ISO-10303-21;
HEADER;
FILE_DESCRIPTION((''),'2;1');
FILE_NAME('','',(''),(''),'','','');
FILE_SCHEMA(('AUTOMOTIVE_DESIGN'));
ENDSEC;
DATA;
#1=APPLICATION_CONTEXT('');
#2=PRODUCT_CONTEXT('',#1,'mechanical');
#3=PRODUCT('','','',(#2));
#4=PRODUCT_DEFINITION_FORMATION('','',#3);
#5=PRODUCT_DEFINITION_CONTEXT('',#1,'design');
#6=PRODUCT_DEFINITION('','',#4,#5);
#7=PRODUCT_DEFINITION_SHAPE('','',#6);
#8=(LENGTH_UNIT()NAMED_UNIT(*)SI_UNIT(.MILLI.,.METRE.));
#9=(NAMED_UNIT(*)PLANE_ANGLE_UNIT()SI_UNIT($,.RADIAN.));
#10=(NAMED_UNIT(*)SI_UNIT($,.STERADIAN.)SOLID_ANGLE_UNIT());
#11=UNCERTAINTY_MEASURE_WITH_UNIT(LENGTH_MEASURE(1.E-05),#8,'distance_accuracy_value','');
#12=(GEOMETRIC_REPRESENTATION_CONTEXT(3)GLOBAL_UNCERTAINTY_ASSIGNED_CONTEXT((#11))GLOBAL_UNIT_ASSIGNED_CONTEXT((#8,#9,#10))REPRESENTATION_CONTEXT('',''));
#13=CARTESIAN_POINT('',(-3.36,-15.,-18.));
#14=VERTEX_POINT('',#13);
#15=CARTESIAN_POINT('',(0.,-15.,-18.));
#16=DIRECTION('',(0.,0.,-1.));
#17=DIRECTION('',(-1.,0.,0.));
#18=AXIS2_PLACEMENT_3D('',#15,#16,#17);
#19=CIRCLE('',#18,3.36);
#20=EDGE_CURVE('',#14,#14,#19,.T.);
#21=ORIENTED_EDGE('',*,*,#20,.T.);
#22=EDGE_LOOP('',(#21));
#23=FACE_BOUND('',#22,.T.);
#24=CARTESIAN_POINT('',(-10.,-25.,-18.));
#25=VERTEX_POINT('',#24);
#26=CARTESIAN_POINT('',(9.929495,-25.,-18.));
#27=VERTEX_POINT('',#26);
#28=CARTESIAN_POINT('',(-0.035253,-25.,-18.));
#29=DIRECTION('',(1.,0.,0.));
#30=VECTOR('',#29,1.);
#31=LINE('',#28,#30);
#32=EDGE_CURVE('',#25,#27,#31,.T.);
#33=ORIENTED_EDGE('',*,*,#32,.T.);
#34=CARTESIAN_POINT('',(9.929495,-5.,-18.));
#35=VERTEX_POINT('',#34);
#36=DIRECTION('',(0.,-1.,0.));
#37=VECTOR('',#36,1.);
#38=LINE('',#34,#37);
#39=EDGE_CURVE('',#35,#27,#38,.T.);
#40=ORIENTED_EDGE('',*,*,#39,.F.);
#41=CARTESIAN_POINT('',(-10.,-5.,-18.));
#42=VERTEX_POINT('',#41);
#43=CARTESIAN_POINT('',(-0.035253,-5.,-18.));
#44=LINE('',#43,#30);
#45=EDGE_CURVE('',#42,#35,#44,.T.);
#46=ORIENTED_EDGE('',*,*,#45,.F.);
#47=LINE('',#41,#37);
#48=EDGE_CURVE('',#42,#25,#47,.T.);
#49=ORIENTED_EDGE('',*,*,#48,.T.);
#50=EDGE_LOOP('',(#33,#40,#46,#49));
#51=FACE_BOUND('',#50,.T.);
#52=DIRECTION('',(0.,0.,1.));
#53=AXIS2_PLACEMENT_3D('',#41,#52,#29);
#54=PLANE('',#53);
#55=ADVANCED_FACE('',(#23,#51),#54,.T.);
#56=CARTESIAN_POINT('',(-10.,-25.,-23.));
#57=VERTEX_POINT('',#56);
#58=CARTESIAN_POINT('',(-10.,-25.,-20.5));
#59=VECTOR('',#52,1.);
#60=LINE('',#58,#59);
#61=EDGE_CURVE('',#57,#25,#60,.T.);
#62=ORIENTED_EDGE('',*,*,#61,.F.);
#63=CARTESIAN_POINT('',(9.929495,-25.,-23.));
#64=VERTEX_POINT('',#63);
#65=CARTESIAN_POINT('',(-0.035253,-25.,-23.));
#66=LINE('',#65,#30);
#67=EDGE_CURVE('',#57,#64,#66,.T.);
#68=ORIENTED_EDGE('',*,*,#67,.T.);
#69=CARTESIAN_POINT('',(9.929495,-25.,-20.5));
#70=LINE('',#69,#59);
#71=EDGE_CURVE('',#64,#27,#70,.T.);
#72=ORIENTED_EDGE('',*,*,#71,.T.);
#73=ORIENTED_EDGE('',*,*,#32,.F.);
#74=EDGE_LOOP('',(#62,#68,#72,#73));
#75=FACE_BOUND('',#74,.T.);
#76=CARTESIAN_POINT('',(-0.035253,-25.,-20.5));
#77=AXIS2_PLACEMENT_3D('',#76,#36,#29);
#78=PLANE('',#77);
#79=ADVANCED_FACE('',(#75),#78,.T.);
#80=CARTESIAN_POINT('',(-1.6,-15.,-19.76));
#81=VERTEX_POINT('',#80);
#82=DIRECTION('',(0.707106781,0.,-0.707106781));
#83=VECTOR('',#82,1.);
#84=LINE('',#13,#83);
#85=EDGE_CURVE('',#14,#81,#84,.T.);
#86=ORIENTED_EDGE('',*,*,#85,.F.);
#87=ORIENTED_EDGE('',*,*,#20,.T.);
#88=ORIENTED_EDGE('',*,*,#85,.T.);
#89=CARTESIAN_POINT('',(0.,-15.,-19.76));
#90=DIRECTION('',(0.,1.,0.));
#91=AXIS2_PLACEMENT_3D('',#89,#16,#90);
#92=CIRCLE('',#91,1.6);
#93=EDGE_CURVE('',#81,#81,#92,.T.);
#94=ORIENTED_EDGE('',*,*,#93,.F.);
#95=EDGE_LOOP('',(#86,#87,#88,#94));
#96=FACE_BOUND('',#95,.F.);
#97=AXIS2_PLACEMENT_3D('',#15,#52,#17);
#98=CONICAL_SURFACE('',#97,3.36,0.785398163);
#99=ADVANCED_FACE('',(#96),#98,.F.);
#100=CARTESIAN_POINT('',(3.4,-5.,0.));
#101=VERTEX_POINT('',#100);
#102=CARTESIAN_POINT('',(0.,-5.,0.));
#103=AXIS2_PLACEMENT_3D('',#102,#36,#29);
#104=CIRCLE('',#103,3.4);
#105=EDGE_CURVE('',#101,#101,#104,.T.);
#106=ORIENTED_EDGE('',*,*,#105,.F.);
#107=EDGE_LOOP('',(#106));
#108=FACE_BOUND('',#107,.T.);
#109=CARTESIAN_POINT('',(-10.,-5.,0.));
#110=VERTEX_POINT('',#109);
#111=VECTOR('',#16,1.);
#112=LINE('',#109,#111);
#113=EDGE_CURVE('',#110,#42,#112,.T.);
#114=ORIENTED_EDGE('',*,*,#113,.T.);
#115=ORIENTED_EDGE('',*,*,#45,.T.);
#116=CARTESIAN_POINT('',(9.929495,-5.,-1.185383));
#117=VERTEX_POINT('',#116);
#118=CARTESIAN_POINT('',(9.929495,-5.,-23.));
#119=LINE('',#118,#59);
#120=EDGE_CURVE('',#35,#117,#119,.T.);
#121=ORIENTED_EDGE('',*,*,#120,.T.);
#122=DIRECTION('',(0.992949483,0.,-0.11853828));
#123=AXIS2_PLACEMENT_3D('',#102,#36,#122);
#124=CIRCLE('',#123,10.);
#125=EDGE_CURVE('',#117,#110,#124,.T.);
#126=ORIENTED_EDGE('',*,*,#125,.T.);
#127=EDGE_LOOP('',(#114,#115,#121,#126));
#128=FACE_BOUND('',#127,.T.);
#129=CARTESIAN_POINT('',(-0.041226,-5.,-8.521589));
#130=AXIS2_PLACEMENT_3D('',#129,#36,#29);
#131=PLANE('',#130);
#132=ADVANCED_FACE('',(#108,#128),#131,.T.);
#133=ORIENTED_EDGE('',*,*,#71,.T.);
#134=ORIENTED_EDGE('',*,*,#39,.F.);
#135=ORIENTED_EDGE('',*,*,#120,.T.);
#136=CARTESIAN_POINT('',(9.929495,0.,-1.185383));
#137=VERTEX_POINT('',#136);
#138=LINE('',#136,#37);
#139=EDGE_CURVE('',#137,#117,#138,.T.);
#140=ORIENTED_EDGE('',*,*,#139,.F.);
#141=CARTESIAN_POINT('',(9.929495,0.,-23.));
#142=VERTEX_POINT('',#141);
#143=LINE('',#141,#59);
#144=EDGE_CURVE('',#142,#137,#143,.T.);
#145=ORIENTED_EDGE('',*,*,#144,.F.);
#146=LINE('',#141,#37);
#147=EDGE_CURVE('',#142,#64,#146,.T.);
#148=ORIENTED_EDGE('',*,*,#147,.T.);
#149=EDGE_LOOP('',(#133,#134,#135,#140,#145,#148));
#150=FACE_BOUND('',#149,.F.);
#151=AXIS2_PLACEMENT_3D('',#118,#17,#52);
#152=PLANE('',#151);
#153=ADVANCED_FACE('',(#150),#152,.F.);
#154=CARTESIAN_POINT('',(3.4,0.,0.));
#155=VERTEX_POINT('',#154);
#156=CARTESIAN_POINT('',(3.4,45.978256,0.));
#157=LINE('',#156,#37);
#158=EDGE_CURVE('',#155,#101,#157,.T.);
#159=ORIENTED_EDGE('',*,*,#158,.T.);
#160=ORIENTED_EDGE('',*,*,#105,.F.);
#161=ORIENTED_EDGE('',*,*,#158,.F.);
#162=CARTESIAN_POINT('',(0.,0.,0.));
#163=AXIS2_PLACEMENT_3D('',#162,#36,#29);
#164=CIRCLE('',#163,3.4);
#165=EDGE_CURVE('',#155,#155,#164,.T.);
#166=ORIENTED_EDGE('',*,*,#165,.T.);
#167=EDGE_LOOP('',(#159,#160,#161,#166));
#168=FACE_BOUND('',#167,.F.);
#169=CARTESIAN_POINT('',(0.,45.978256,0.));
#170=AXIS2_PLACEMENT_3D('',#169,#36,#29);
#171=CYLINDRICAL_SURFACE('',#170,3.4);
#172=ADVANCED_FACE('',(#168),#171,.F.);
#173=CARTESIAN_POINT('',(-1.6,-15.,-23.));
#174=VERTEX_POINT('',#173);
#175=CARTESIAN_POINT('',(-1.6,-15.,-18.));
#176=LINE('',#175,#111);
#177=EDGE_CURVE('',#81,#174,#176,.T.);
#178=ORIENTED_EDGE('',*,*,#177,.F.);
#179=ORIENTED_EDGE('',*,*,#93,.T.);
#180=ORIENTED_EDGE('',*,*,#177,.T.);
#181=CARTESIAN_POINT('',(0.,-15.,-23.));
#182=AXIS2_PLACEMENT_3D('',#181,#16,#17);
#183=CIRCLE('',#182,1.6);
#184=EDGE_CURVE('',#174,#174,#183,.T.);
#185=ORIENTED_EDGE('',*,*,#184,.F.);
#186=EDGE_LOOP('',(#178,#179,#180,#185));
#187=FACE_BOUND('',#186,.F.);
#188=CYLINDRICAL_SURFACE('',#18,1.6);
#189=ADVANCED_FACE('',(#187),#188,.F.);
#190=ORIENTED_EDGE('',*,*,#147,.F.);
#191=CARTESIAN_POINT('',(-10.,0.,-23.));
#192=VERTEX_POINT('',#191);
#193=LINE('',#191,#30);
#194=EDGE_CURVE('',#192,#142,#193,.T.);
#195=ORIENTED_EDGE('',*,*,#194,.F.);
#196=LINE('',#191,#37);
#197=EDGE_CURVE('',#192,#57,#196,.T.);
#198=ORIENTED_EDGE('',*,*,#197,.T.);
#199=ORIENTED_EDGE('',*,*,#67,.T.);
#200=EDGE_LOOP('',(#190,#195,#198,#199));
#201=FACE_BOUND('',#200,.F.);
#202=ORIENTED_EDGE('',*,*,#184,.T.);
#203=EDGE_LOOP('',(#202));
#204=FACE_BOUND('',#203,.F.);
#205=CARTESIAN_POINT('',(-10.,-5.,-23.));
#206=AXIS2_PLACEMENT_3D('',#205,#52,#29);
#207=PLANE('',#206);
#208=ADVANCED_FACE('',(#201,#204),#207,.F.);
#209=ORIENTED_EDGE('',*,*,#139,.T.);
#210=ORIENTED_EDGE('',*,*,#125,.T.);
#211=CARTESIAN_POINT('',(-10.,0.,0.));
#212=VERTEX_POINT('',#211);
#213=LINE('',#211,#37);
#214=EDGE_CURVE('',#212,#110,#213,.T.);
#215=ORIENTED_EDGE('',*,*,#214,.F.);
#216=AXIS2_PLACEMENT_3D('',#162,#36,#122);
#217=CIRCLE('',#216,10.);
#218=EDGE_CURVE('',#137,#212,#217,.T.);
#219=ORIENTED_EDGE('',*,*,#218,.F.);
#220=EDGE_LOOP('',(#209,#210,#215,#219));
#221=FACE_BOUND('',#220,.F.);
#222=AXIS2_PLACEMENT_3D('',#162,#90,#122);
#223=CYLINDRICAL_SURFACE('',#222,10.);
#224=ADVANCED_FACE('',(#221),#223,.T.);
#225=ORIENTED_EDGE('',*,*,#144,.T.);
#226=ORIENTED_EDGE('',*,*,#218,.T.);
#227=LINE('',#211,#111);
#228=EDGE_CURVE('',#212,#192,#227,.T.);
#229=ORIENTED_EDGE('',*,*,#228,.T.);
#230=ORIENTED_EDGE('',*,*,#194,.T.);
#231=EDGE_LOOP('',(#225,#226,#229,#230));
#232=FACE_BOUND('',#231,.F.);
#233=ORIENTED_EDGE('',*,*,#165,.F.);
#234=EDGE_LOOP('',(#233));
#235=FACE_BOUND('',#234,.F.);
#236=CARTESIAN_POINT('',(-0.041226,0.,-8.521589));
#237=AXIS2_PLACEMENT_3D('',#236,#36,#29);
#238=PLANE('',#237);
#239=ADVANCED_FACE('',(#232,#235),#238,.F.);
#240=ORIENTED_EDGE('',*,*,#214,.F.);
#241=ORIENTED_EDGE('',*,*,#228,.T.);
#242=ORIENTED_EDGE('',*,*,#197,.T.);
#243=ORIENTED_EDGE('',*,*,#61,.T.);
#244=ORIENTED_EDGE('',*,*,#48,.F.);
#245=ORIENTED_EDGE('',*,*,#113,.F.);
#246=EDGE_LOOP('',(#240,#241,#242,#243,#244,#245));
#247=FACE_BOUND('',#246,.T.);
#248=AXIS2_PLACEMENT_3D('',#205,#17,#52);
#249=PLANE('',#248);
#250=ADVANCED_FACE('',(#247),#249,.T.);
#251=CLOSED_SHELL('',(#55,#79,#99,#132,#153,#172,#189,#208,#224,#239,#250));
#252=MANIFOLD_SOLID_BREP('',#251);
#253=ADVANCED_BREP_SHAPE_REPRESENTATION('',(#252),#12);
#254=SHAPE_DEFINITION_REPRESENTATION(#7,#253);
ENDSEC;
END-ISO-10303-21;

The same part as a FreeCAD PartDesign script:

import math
import FreeCAD as App
import Part
import Sketcher
from FreeCAD import Vector


def add_polygon(sketch, points):
    """Adds a closed chain of lines whose ends are joined by coincident constraints."""
    first, n = sketch.GeometryCount, len(points)
    for a, b in zip(points, points[1:] + points[:1]):
        sketch.addGeometry(Part.LineSegment(App.Vector(*a, 0), App.Vector(*b, 0)), False)
    for i in range(n):
        sketch.addConstraint(Sketcher.Constraint("Coincident", first + i, 2, first + (i + 1) % n, 1))

doc = App.newDocument("Part")
params = doc.addObject("Spreadsheet::Sheet", "Params")
for row, (alias, value) in enumerate([
    ("sketch1_radius", "10 mm"),
    ("sketch1_height", "23 mm"),
    ("pad1_length", "5 mm"),
    ("sketch2_height", "5 mm"),
    ("pad2_length", "20 mm"),
    ("sketch3_diameter", "6.8 mm"),
    ("hole_diameter", "6.8 mm"),
    ("sketch4_diameter", "3.2 mm"),
    ("hole2_diameter", "3.2 mm"),
    ("hole2_csink_diameter", "6.72 mm"),
], start=1):
    params.set(f"A{row}", alias)
    params.set(f"B{row}", "=" + value)
    params.setAlias(f"B{row}", alias)

body = doc.addObject("PartDesign::Body", "Body")

sketch1 = doc.addObject("Sketcher::SketchObject", "Sketch")
body.addObject(sketch1)
sketch1.AttachmentSupport = (doc.XZ_Plane, [""])
sketch1.MapMode = "FlatFace"
sketch1.addGeometry([
    Part.LineSegment(Vector(9.929495, -23, 0), Vector(9.929495, -1.185383, 0)),
    Part.ArcOfCircle(Part.Circle(Vector(0, 0, 0), Vector(0, 0, 1), 10), math.radians(-6.80775), math.radians(180)),
    Part.LineSegment(Vector(-10, 0, 0), Vector(-10, -23, 0)),
    Part.LineSegment(Vector(-10, -23, 0), Vector(9.929495, -23, 0)),
], False)
sketch1.addConstraint([
    Sketcher.Constraint("Coincident", 0, 2, 1, 1),
    Sketcher.Constraint("Tangent", 1, 2, 2, 1),
    Sketcher.Constraint("Coincident", 2, 2, 3, 1),
    Sketcher.Constraint("Coincident", 3, 2, 0, 1),
    Sketcher.Constraint("Vertical", 0),
    Sketcher.Constraint("Vertical", 2),
    Sketcher.Constraint("Horizontal", 3),
    Sketcher.Constraint("Coincident", 1, 3, -1, 1),
    Sketcher.Constraint("Radius", 1, 10.0),
    Sketcher.Constraint("DistanceY", 2, 2, 2, 1, 23.0),
    Sketcher.Constraint("DistanceX", 3, 1, 3, 2, 19.929495),
])
sketch1.setExpression("Constraints[8]", "Params.sketch1_radius")
sketch1.setExpression("Constraints[9]", "Params.sketch1_height")
pad1 = doc.addObject("PartDesign::Pad", "Pad")
body.addObject(pad1)
pad1.Profile = sketch1
pad1.setExpression("Length", "Params.pad1_length")

sketch2 = doc.addObject("Sketcher::SketchObject", "Sketch001")
body.addObject(sketch2)
sketch2.AttachmentSupport = (doc.XZ_Plane, [""])
sketch2.MapMode = "FlatFace"
sketch2.AttachmentOffset = App.Placement(Vector(0, 0, 5), App.Rotation())
add_polygon(sketch2, [(-10, -18), (-10, -23), (9.929495, -23), (9.929495, -18)])
sketch2.addConstraint([
    Sketcher.Constraint("Vertical", 0),
    Sketcher.Constraint("Horizontal", 1),
    Sketcher.Constraint("Vertical", 2),
    Sketcher.Constraint("Horizontal", 3),
    Sketcher.Constraint("DistanceY", 0, 2, 0, 1, 5.0),
    Sketcher.Constraint("DistanceX", 0, 2, -1, 1, 10.0),
    Sketcher.Constraint("DistanceY", 0, 2, -1, 1, 23.0),
    Sketcher.Constraint("DistanceX", 1, 1, 1, 2, 19.929495),
])
sketch2.setExpression("Constraints[8]", "Params.sketch2_height")
pad2 = doc.addObject("PartDesign::Pad", "Pad001")
body.addObject(pad2)
pad2.Profile = sketch2
pad2.setExpression("Length", "Params.pad2_length")

sketch3 = doc.addObject("Sketcher::SketchObject", "Sketch002")
body.addObject(sketch3)
sketch3.AttachmentSupport = (doc.XZ_Plane, [""])
sketch3.MapMode = "FlatFace"
sketch3.addGeometry(Part.Circle(Vector(0, 0, 0), Vector(0, 0, 1), 3.4), False)
sketch3.addConstraint([
    Sketcher.Constraint("Coincident", 0, 3, -1, 1),
    Sketcher.Constraint("Diameter", 0, 6.8),
])
sketch3.setExpression("Constraints[1]", "Params.sketch3_diameter")
doc.recompute()
hole = doc.addObject("PartDesign::Hole", "Hole")
body.addObject(hole)
hole.Profile = sketch3
hole.ThreadType = "None"
hole.setExpression("Diameter", "Params.hole_diameter")
hole.DepthType = "ThroughAll"
hole.Reversed = True

sketch4 = doc.addObject("Sketcher::SketchObject", "Sketch003")
body.addObject(sketch4)
sketch4.AttachmentSupport = (doc.XY_Plane, [""])
sketch4.MapMode = "FlatFace"
sketch4.AttachmentOffset = App.Placement(Vector(0, 0, -18), App.Rotation())
sketch4.addGeometry(Part.Circle(Vector(0, -15, 0), Vector(0, 0, 1), 1.6), False)
sketch4.addConstraint([
    Sketcher.Constraint("PointOnObject", 0, 3, -2),
    Sketcher.Constraint("Diameter", 0, 3.2),
    Sketcher.Constraint("DistanceY", 0, 3, -1, 1, 15.0),
])
sketch4.setExpression("Constraints[1]", "Params.sketch4_diameter")
doc.recompute()
hole2 = doc.addObject("PartDesign::Hole", "Hole001")
body.addObject(hole2)
hole2.Profile = sketch4
hole2.ThreadType = "None"
hole2.setExpression("Diameter", "Params.hole2_diameter")
hole2.DepthType = "ThroughAll"
hole2.HoleCutType = "Countersink"
hole2.setExpression("HoleCutDiameter", "Params.hole2_csink_diameter")
hole2.HoleCutCountersinkAngle = 90

doc.recompute()
